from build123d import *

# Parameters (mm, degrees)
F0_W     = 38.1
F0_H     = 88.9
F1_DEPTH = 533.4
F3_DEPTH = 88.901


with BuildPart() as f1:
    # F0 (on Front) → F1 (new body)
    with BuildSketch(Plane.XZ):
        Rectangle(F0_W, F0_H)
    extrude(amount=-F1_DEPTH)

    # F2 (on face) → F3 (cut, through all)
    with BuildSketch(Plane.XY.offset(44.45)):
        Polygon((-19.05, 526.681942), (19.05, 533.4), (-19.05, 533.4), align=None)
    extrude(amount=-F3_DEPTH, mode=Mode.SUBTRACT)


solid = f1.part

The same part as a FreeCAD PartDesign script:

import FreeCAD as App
import Part
import Sketcher
from FreeCAD import Vector
Q = App.Units.Quantity

doc = App.newDocument("Part")
body = doc.addObject("PartDesign::Body", "Body")

sketch1 = body.newObject("Sketcher::SketchObject", "Sketch")
sketch1.AttachmentSupport = (doc.getObject("XZ_Plane"), [""])
sketch1.MapMode = "FlatFace"
sketch1.addGeometry([
    Part.LineSegment(Vector(-19, 44, 0), Vector(-19, -44, 0)),
    Part.LineSegment(Vector(-19, -44, 0), Vector(19, -44, 0)),
    Part.LineSegment(Vector(19, -44, 0), Vector(19, 44, 0)),
    Part.LineSegment(Vector(19, 44, 0), Vector(-19, 44, 0)),
], False)
sketch1.addConstraint([
    Sketcher.Constraint("Coincident", 0, 2, 1, 1),
    Sketcher.Constraint("Coincident", 1, 2, 2, 1),
    Sketcher.Constraint("Coincident", 2, 2, 3, 1),
    Sketcher.Constraint("Coincident", 3, 2, 0, 1),
    Sketcher.Constraint("Vertical", 0),
    Sketcher.Constraint("Horizontal", 1),
    Sketcher.Constraint("Vertical", 2),
    Sketcher.Constraint("Horizontal", 3),
    Sketcher.Constraint("Symmetric", 0, 2, 2, 2, -1, 1),
    Sketcher.Constraint("DistanceX", 1, 1, 1, 2, Q("1.5 in")),
    Sketcher.Constraint("DistanceY", 0, 2, 0, 1, Q("3.5 in")),
])
pad1 = body.newObject("PartDesign::Pad", "Pad")
pad1.Profile = sketch1
pad1.Length = Q("21 in")
pad1.Reversed = True

sketch2 = body.newObject("Sketcher::SketchObject", "Sketch001")
sketch2.AttachmentSupport = (doc.getObject("XY_Plane"), [""])
sketch2.MapMode = "FlatFace"
sketch2.AttachmentOffset = App.Placement(Vector(0, 0, 1.75 * 25.4), App.Rotation())
sketch2.addGeometry([
    Part.LineSegment(Vector(-19, 527, 0), Vector(19, 533, 0)),
    Part.LineSegment(Vector(19, 533, 0), Vector(-19, 533, 0)),
    Part.LineSegment(Vector(-19, 533, 0), Vector(-19, 527, 0)),
], False)
sketch2.addConstraint([
    Sketcher.Constraint("Coincident", 0, 2, 1, 1),
    Sketcher.Constraint("Coincident", 1, 2, 2, 1),
    Sketcher.Constraint("Coincident", 2, 2, 0, 1),
    Sketcher.Constraint("Horizontal", 1),
    Sketcher.Constraint("Vertical", 2),
    Sketcher.Constraint("DistanceX", 1, 2, 1, 1, Q("1.5 in")),
    Sketcher.Constraint("DistanceY", -1, 1, 0, 2, Q("21 in")),
    Sketcher.Constraint("Angle", 0, Q("10 deg")),
    Sketcher.Constraint("DistanceX", -1, 1, 0, 2, Q("0.75 in")),
])
pocket1 = body.newObject("PartDesign::Pocket", "Pocket")
pocket1.Profile = sketch2
pocket1.Type = "ThroughAll"

doc.recompute()
